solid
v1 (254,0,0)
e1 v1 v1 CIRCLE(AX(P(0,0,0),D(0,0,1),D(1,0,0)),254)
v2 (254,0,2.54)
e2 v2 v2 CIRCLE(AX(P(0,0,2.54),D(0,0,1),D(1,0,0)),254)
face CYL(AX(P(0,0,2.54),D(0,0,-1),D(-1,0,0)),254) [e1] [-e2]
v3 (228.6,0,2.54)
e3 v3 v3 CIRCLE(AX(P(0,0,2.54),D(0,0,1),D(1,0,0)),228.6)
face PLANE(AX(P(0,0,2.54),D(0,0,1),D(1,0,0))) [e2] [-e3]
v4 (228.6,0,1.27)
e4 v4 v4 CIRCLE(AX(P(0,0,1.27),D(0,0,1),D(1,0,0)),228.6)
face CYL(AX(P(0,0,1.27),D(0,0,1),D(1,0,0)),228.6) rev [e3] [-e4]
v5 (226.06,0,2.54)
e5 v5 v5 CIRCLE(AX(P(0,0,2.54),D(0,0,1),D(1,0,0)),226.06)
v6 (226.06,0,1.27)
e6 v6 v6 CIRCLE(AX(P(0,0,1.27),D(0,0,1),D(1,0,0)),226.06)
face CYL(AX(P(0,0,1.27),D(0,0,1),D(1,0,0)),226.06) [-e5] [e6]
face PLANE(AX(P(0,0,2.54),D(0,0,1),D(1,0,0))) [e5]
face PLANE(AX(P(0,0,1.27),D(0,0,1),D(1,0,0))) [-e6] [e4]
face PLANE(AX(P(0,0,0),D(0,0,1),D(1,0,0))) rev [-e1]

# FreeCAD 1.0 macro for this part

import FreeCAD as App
import Part
import Sketcher
Q = App.Units.Quantity

doc = App.newDocument("Part")
body = doc.addObject("PartDesign::Body", "Body")

sketch1 = doc.addObject("Sketcher::SketchObject", "Sketch")
body.addObject(sketch1)
sketch1.AttachmentSupport = (doc.XY_Plane, [""])
sketch1.MapMode = "FlatFace"
sketch1.addGeometry(Part.Circle(App.Vector(0, 0, 0), App.Vector(0, 0, 1), 254), False)
sketch1.addConstraint([
    Sketcher.Constraint("Coincident", 0, 3, -1, 1),
    Sketcher.Constraint("Diameter", 0, Q("20 in")),
])
pad1 = doc.addObject("PartDesign::Pad", "Pad")
body.addObject(pad1)
pad1.Profile = sketch1
pad1.Length = Q("0.1 in")

sketch2 = doc.addObject("Sketcher::SketchObject", "Sketch001")
body.addObject(sketch2)
sketch2.AttachmentSupport = (doc.XY_Plane, [""])
sketch2.MapMode = "FlatFace"
sketch2.AttachmentOffset = App.Placement(App.Vector(0, 0, 0.1 * 25.4), App.Rotation())
sketch2.addGeometry([
    Part.Circle(App.Vector(0, 0, 0), App.Vector(0, 0, 1), 228.6),
    Part.Circle(App.Vector(0, 0, 0), App.Vector(0, 0, 1), 226.06),
], False)
sketch2.addConstraint([
    Sketcher.Constraint("Coincident", 0, 3, -1, 1),
    Sketcher.Constraint("Coincident", 1, 3, -1, 1),
    Sketcher.Constraint("Diameter", 0, Q("18 in")),
    Sketcher.Constraint("Diameter", 1, Q("17.8 in")),
])
pocket1 = doc.addObject("PartDesign::Pocket", "Pocket")
body.addObject(pocket1)
pocket1.Profile = sketch2
pocket1.Length = Q("0.05 in")

doc.recompute()
